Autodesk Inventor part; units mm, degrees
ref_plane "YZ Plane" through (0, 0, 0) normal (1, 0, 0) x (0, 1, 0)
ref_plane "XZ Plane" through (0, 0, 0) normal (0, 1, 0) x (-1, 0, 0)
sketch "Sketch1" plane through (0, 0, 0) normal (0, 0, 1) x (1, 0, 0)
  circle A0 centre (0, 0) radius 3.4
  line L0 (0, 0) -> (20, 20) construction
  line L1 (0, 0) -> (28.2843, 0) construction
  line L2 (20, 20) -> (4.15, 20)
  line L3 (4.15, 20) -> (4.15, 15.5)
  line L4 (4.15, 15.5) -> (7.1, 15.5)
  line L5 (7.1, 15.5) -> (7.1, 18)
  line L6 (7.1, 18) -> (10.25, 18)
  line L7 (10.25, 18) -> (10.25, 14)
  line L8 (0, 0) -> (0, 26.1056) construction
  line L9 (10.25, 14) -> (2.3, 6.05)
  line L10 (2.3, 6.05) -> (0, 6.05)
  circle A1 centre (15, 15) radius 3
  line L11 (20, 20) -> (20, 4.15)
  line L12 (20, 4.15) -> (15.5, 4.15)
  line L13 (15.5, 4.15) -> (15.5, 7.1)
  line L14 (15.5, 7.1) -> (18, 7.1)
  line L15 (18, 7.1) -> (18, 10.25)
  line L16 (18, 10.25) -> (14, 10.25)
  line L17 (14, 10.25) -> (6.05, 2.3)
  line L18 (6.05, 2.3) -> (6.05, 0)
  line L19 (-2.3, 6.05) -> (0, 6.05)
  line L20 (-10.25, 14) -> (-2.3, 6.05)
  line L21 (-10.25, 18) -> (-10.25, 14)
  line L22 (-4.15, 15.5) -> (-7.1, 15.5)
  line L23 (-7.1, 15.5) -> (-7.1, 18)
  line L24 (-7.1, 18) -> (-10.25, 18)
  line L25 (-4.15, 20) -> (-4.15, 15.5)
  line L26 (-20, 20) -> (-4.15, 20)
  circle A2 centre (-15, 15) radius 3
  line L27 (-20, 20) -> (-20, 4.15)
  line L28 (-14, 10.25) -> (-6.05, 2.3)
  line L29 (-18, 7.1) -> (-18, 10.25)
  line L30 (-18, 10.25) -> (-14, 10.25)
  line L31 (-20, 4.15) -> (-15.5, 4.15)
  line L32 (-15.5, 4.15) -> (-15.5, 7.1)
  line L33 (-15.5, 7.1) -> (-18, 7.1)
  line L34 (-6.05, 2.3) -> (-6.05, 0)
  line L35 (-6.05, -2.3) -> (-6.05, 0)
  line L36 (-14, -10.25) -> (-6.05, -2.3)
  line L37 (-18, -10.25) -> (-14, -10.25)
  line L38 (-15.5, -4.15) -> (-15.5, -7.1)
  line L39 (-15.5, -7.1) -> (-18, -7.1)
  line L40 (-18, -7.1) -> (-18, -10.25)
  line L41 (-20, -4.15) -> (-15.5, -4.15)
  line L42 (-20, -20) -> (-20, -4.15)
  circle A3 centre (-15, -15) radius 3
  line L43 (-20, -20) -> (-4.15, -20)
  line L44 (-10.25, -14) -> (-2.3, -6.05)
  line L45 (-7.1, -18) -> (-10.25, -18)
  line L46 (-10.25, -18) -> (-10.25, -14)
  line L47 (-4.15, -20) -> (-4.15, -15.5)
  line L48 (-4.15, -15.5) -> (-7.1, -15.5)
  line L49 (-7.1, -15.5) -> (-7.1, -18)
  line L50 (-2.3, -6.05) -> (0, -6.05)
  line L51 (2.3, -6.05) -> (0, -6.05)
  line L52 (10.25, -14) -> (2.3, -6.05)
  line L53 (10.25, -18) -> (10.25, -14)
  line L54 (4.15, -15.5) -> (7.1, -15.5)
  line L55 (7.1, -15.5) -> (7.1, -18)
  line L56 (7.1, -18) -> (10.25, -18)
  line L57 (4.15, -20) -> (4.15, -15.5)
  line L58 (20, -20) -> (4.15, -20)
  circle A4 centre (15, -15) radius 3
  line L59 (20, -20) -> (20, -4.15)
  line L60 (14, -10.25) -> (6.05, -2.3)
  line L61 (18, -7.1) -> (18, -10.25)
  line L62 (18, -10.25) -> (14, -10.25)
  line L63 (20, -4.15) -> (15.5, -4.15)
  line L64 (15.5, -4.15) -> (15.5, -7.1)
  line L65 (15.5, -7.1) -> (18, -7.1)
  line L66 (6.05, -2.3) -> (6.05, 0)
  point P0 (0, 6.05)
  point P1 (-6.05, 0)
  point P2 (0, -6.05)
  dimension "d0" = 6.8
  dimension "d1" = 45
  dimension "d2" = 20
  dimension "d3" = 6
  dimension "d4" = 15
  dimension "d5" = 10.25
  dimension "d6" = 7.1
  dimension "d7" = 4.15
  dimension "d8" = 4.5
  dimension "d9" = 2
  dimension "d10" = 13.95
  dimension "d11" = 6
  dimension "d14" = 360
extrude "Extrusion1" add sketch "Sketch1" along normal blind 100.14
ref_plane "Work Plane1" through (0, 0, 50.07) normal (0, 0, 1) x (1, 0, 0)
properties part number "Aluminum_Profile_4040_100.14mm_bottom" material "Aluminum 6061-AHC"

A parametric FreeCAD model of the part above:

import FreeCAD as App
import Part
import Sketcher
from FreeCAD import Vector
Q = App.Units.Quantity

doc = App.newDocument("Part")
body = doc.addObject("PartDesign::Body", "Body")

sketch1 = body.newObject("Sketcher::SketchObject", "Sketch")
sketch1.AttachmentSupport = (doc.getObject("XY_Plane"), [""])
sketch1.MapMode = "FlatFace"
sketch1.addGeometry([
    Part.LineSegment(Vector(20, 4.15, 0), Vector(20, 20, 0)),
    Part.LineSegment(Vector(20, 20, 0), Vector(4.15, 20, 0)),
    Part.LineSegment(Vector(4.15, 20, 0), Vector(4.15, 15.5, 0)),
    Part.LineSegment(Vector(4.15, 15.5, 0), Vector(7.1, 15.5, 0)),
    Part.LineSegment(Vector(7.1, 15.5, 0), Vector(7.1, 18, 0)),
    Part.LineSegment(Vector(7.1, 18, 0), Vector(10.25, 18, 0)),
    Part.LineSegment(Vector(10.25, 18, 0), Vector(10.25, 14, 0)),
    Part.LineSegment(Vector(10.25, 14, 0), Vector(2.3, 6.05, 0)),
    Part.LineSegment(Vector(2.3, 6.05, 0), Vector(-2.3, 6.05, 0)),
    Part.LineSegment(Vector(-2.3, 6.05, 0), Vector(-10.25, 14, 0)),
    Part.LineSegment(Vector(-10.25, 14, 0), Vector(-10.25, 18, 0)),
    Part.LineSegment(Vector(-10.25, 18, 0), Vector(-7.1, 18, 0)),
    Part.LineSegment(Vector(-7.1, 18, 0), Vector(-7.1, 15.5, 0)),
    Part.LineSegment(Vector(-7.1, 15.5, 0), Vector(-4.15, 15.5, 0)),
    Part.LineSegment(Vector(-4.15, 15.5, 0), Vector(-4.15, 20, 0)),
    Part.LineSegment(Vector(-4.15, 20, 0), Vector(-20, 20, 0)),
    Part.LineSegment(Vector(-20, 20, 0), Vector(-20, 4.15, 0)),
    Part.LineSegment(Vector(-20, 4.15, 0), Vector(-15.5, 4.15, 0)),
    Part.LineSegment(Vector(-15.5, 4.15, 0), Vector(-15.5, 7.1, 0)),
    Part.LineSegment(Vector(-15.5, 7.1, 0), Vector(-18, 7.1, 0)),
    Part.LineSegment(Vector(-18, 7.1, 0), Vector(-18, 10.25, 0)),
    Part.LineSegment(Vector(-18, 10.25, 0), Vector(-14, 10.25, 0)),
    Part.LineSegment(Vector(-14, 10.25, 0), Vector(-6.05, 2.3, 0)),
    Part.LineSegment(Vector(-6.05, 2.3, 0), Vector(-6.05, -2.3, 0)),
    Part.LineSegment(Vector(-6.05, -2.3, 0), Vector(-14, -10.25, 0)),
    Part.LineSegment(Vector(-14, -10.25, 0), Vector(-18, -10.25, 0)),
    Part.LineSegment(Vector(-18, -10.25, 0), Vector(-18, -7.1, 0)),
    Part.LineSegment(Vector(-18, -7.1, 0), Vector(-15.5, -7.1, 0)),
    Part.LineSegment(Vector(-15.5, -7.1, 0), Vector(-15.5, -4.15, 0)),
    Part.LineSegment(Vector(-15.5, -4.15, 0), Vector(-20, -4.15, 0)),
    Part.LineSegment(Vector(-20, -4.15, 0), Vector(-20, -20, 0)),
    Part.LineSegment(Vector(-20, -20, 0), Vector(-4.15, -20, 0)),
    Part.LineSegment(Vector(-4.15, -20, 0), Vector(-4.15, -15.5, 0)),
    Part.LineSegment(Vector(-4.15, -15.5, 0), Vector(-7.1, -15.5, 0)),
    Part.LineSegment(Vector(-7.1, -15.5, 0), Vector(-7.1, -18, 0)),
    Part.LineSegment(Vector(-7.1, -18, 0), Vector(-10.25, -18, 0)),
    Part.LineSegment(Vector(-10.25, -18, 0), Vector(-10.25, -14, 0)),
    Part.LineSegment(Vector(-10.25, -14, 0), Vector(-2.3, -6.05, 0)),
    Part.LineSegment(Vector(-2.3, -6.05, 0), Vector(2.3, -6.05, 0)),
    Part.LineSegment(Vector(2.3, -6.05, 0), Vector(10.25, -14, 0)),
    Part.LineSegment(Vector(10.25, -14, 0), Vector(10.25, -18, 0)),
    Part.LineSegment(Vector(10.25, -18, 0), Vector(7.1, -18, 0)),
    Part.LineSegment(Vector(7.1, -18, 0), Vector(7.1, -15.5, 0)),
    Part.LineSegment(Vector(7.1, -15.5, 0), Vector(4.15, -15.5, 0)),
    Part.LineSegment(Vector(4.15, -15.5, 0), Vector(4.15, -20, 0)),
    Part.LineSegment(Vector(4.15, -20, 0), Vector(20, -20, 0)),
    Part.LineSegment(Vector(20, -20, 0), Vector(20, -4.15, 0)),
    Part.LineSegment(Vector(20, -4.15, 0), Vector(15.5, -4.15, 0)),
    Part.LineSegment(Vector(15.5, -4.15, 0), Vector(15.5, -7.1, 0)),
    Part.LineSegment(Vector(15.5, -7.1, 0), Vector(18, -7.1, 0)),
    Part.LineSegment(Vector(18, -7.1, 0), Vector(18, -10.25, 0)),
    Part.LineSegment(Vector(18, -10.25, 0), Vector(14, -10.25, 0)),
    Part.LineSegment(Vector(14, -10.25, 0), Vector(6.05, -2.3, 0)),
    Part.LineSegment(Vector(6.05, -2.3, 0), Vector(6.05, 2.3, 0)),
    Part.LineSegment(Vector(6.05, 2.3, 0), Vector(14, 10.25, 0)),
    Part.LineSegment(Vector(14, 10.25, 0), Vector(18, 10.25, 0)),
    Part.LineSegment(Vector(18, 10.25, 0), Vector(18, 7.1, 0)),
    Part.LineSegment(Vector(18, 7.1, 0), Vector(15.5, 7.1, 0)),
    Part.LineSegment(Vector(15.5, 7.1, 0), Vector(15.5, 4.15, 0)),
    Part.LineSegment(Vector(15.5, 4.15, 0), Vector(20, 4.15, 0)),
    Part.Circle(Vector(-15, -15, 0), Vector(0, 0, 1), 3),
    Part.Circle(Vector(15, -15, 0), Vector(0, 0, 1), 3),
    Part.Circle(Vector(-15, 15, 0), Vector(0, 0, 1), 3),
    Part.Circle(Vector(0, 0, 0), Vector(0, 0, 1), 3.4),
    Part.Circle(Vector(15, 15, 0), Vector(0, 0, 1), 3),
], False)
sketch1.addConstraint([
    Sketcher.Constraint("Coincident", 0, 2, 1, 1),
    Sketcher.Constraint("Coincident", 1, 2, 2, 1),
    Sketcher.Constraint("Coincident", 2, 2, 3, 1),
    Sketcher.Constraint("Coincident", 3, 2, 4, 1),
    Sketcher.Constraint("Coincident", 4, 2, 5, 1),
    Sketcher.Constraint("Coincident", 5, 2, 6, 1),
    Sketcher.Constraint("Coincident", 6, 2, 7, 1),
    Sketcher.Constraint("Coincident", 7, 2, 8, 1),
    Sketcher.Constraint("Coincident", 8, 2, 9, 1),
    Sketcher.Constraint("Coincident", 9, 2, 10, 1),
    Sketcher.Constraint("Coincident", 10, 2, 11, 1),
    Sketcher.Constraint("Coincident", 11, 2, 12, 1),
    Sketcher.Constraint("Coincident", 12, 2, 13, 1),
    Sketcher.Constraint("Coincident", 13, 2, 14, 1),
    Sketcher.Constraint("Coincident", 14, 2, 15, 1),
    Sketcher.Constraint("Coincident", 15, 2, 16, 1),
    Sketcher.Constraint("Coincident", 16, 2, 17, 1),
    Sketcher.Constraint("Coincident", 17, 2, 18, 1),
    Sketcher.Constraint("Coincident", 18, 2, 19, 1),
    Sketcher.Constraint("Coincident", 19, 2, 20, 1),
    Sketcher.Constraint("Coincident", 20, 2, 21, 1),
    Sketcher.Constraint("Coincident", 21, 2, 22, 1),
    Sketcher.Constraint("Coincident", 22, 2, 23, 1),
    Sketcher.Constraint("Coincident", 23, 2, 24, 1),
    Sketcher.Constraint("Coincident", 24, 2, 25, 1),
    Sketcher.Constraint("Coincident", 25, 2, 26, 1),
    Sketcher.Constraint("Coincident", 26, 2, 27, 1),
    Sketcher.Constraint("Coincident", 27, 2, 28, 1),
    Sketcher.Constraint("Coincident", 28, 2, 29, 1),
    Sketcher.Constraint("Coincident", 29, 2, 30, 1),
    Sketcher.Constraint("Coincident", 30, 2, 31, 1),
    Sketcher.Constraint("Coincident", 31, 2, 32, 1),
    Sketcher.Constraint("Coincident", 32, 2, 33, 1),
    Sketcher.Constraint("Coincident", 33, 2, 34, 1),
    Sketcher.Constraint("Coincident", 34, 2, 35, 1),
    Sketcher.Constraint("Coincident", 35, 2, 36, 1),
    Sketcher.Constraint("Coincident", 36, 2, 37, 1),
    Sketcher.Constraint("Coincident", 37, 2, 38, 1),
    Sketcher.Constraint("Coincident", 38, 2, 39, 1),
    Sketcher.Constraint("Coincident", 39, 2, 40, 1),
    Sketcher.Constraint("Coincident", 40, 2, 41, 1),
    Sketcher.Constraint("Coincident", 41, 2, 42, 1),
    Sketcher.Constraint("Coincident", 42, 2, 43, 1),
    Sketcher.Constraint("Coincident", 43, 2, 44, 1),
    Sketcher.Constraint("Coincident", 44, 2, 45, 1),
    Sketcher.Constraint("Coincident", 45, 2, 46, 1),
    Sketcher.Constraint("Coincident", 46, 2, 47, 1),
    Sketcher.Constraint("Coincident", 47, 2, 48, 1),
    Sketcher.Constraint("Coincident", 48, 2, 49, 1),
    Sketcher.Constraint("Coincident", 49, 2, 50, 1),
    Sketcher.Constraint("Coincident", 50, 2, 51, 1),
    Sketcher.Constraint("Coincident", 51, 2, 52, 1),
    Sketcher.Constraint("Coincident", 52, 2, 53, 1),
    Sketcher.Constraint("Coincident", 53, 2, 54, 1),
    Sketcher.Constraint("Coincident", 54, 2, 55, 1),
    Sketcher.Constraint("Coincident", 55, 2, 56, 1),
    Sketcher.Constraint("Coincident", 56, 2, 57, 1),
    Sketcher.Constraint("Coincident", 57, 2, 58, 1),
    Sketcher.Constraint("Coincident", 58, 2, 59, 1),
    Sketcher.Constraint("Coincident", 59, 2, 0, 1),
    Sketcher.Constraint("Vertical", 0),
    Sketcher.Constraint("Horizontal", 1),
    Sketcher.Constraint("Vertical", 2),
    Sketcher.Constraint("Horizontal", 3),
    Sketcher.Constraint("Vertical", 4),
    Sketcher.Constraint("Horizontal", 5),
    Sketcher.Constraint("Vertical", 6),
    Sketcher.Constraint("Horizontal", 8),
    Sketcher.Constraint("Vertical", 10),
    Sketcher.Constraint("Horizontal", 11),
    Sketcher.Constraint("Vertical", 12),
    Sketcher.Constraint("Horizontal", 13),
    Sketcher.Constraint("Vertical", 14),
    Sketcher.Constraint("Horizontal", 15),
    Sketcher.Constraint("Vertical", 16),
    Sketcher.Constraint("Horizontal", 17),
    Sketcher.Constraint("Vertical", 18),
    Sketcher.Constraint("Horizontal", 19),
    Sketcher.Constraint("Vertical", 20),
    Sketcher.Constraint("Horizontal", 21),
    Sketcher.Constraint("Vertical", 23),
    Sketcher.Constraint("Horizontal", 25),
    Sketcher.Constraint("Vertical", 26),
    Sketcher.Constraint("Horizontal", 27),
    Sketcher.Constraint("Vertical", 28),
    Sketcher.Constraint("Horizontal", 29),
    Sketcher.Constraint("Vertical", 30),
    Sketcher.Constraint("Horizontal", 31),
    Sketcher.Constraint("Vertical", 32),
    Sketcher.Constraint("Horizontal", 33),
    Sketcher.Constraint("Vertical", 34),
    Sketcher.Constraint("Horizontal", 35),
    Sketcher.Constraint("Vertical", 36),
    Sketcher.Constraint("Horizontal", 38),
    Sketcher.Constraint("Vertical", 40),
    Sketcher.Constraint("Horizontal", 41),
    Sketcher.Constraint("Vertical", 42),
    Sketcher.Constraint("Horizontal", 43),
    Sketcher.Constraint("Vertical", 44),
    Sketcher.Constraint("Horizontal", 45),
    Sketcher.Constraint("Vertical", 46),
    Sketcher.Constraint("Horizontal", 47),
    Sketcher.Constraint("Vertical", 48),
    Sketcher.Constraint("Horizontal", 49),
    Sketcher.Constraint("Vertical", 50),
    Sketcher.Constraint("Horizontal", 51),
    Sketcher.Constraint("Vertical", 53),
    Sketcher.Constraint("Horizontal", 55),
    Sketcher.Constraint("Vertical", 56),
    Sketcher.Constraint("Horizontal", 57),
    Sketcher.Constraint("Vertical", 58),
    Sketcher.Constraint("Horizontal", 59),
    Sketcher.Constraint("Coincident", 63, 3, -1, 1),
    Sketcher.Constraint("Equal", 60, 61),
    Sketcher.Constraint("Equal", 61, 62),
    Sketcher.Constraint("Equal", 62, 64),
    Sketcher.Constraint("Symmetric", 61, 3, 62, 3, -1, 1),
    Sketcher.Constraint("Symmetric", 60, 3, 64, 3, -1, 1),
    Sketcher.Constraint("Symmetric", 0, 2, 30, 2, -1, 1),
    Sketcher.Constraint("Symmetric", 2, 2, 32, 2, -1, 1),
    Sketcher.Constraint("Symmetric", 4, 2, 34, 2, -1, 1),
    Sketcher.Constraint("Symmetric", 6, 2, 36, 2, -1, 1),
    Sketcher.Constraint("Symmetric", 7, 2, 37, 2, -1, 1),
    Sketcher.Constraint("Symmetric", 9, 2, 39, 2, -1, 1),
    Sketcher.Constraint("Symmetric", 11, 2, 41, 2, -1, 1),
    Sketcher.Constraint("Symmetric", 13, 2, 43, 2, -1, 1),
    Sketcher.Constraint("Symmetric", 15, 2, 45, 2, -1, 1),
    Sketcher.Constraint("Symmetric", 17, 2, 47, 2, -1, 1),
    Sketcher.Constraint("Symmetric", 19, 2, 49, 2, -1, 1),
    Sketcher.Constraint("Symmetric", 21, 2, 51, 2, -1, 1),
    Sketcher.Constraint("Symmetric", 22, 2, 52, 2, -1, 1),
    Sketcher.Constraint("Symmetric", 24, 2, 54, 2, -1, 1),
    Sketcher.Constraint("Symmetric", 26, 2, 56, 2, -1, 1),
    Sketcher.Constraint("Symmetric", 28, 2, 58, 2, -1, 1),
    Sketcher.Constraint("Symmetric", 60, 3, 61, 3, -2),
    Sketcher.Constraint("Symmetric", 6, 2, 9, 2, -2),
    Sketcher.Constraint("Symmetric", 4, 2, 11, 2, -2),
    Sketcher.Constraint("Symmetric", 2, 2, 13, 2, -2),
    Sketcher.Constraint("Symmetric", 0, 2, 15, 2, -2),
    Sketcher.Constraint("Symmetric", 28, 2, 47, 2, -2),
    Sketcher.Constraint("Symmetric", 26, 2, 49, 2, -2),
    Sketcher.Constraint("Symmetric", 24, 2, 51, 2, -2),
    Sketcher.Constraint("Perpendicular", 7, 9),
    Sketcher.Constraint("Parallel", 9, 22),
    Sketcher.Constraint("Perpendicular", 22, 24),
    Sketcher.Constraint("Perpendicular", 37, 39),
    Sketcher.Constraint("Perpendicular", 52, 54),
    Sketcher.Constraint("Horizontal", 23, 2, 52, 2),
    Sketcher.Constraint("Equal", 45, 0),
    Sketcher.Constraint("Equal", 59, 2),
    Sketcher.Constraint("Equal", 57, 4),
    Sketcher.Constraint("Equal", 55, 6),
    Sketcher.Constraint("Equal", 43, 18),
    Sketcher.Constraint("Equal", 41, 20),
    Sketcher.Constraint("Equal", 38, 23),
    Sketcher.Constraint("Equal", 9, 22),
    Sketcher.Constraint("Diameter", 60, Q("6 mm")),
    Sketcher.Constraint("Diameter", 63, Q("6.8 mm")),
    Sketcher.Constraint("DistanceX", 17, 1, 17, 2, Q("4.5 mm")),
    Sketcher.Constraint("DistanceX", 60, 3, -1, 1, Q("15 mm")),
    Sketcher.Constraint("DistanceY", 60, 3, -1, 1, Q("15 mm")),
    Sketcher.Constraint("DistanceX", -1, 1, 0, 2, Q("20 mm")),
    Sketcher.Constraint("DistanceX", -1, 1, 3, 2, Q("7.1 mm")),
    Sketcher.Constraint("DistanceX", 21, 1, 21, 2, Q("4 mm")),
    Sketcher.Constraint("DistanceX", -1, 1, 1, 2, Q("4.15 mm")),
    Sketcher.Constraint("DistanceX", -1, 1, 5, 2, Q("10.25 mm")),
    Sketcher.Constraint("DistanceX", 8, 2, 8, 1, Q("4.6 mm")),
    Sketcher.Constraint("DistanceX", 19, 2, 19, 1, Q("2.5 mm")),
])
pad1 = body.newObject("PartDesign::Pad", "Pad")
pad1.Profile = sketch1
pad1.Length = 100.14

doc.recompute()
